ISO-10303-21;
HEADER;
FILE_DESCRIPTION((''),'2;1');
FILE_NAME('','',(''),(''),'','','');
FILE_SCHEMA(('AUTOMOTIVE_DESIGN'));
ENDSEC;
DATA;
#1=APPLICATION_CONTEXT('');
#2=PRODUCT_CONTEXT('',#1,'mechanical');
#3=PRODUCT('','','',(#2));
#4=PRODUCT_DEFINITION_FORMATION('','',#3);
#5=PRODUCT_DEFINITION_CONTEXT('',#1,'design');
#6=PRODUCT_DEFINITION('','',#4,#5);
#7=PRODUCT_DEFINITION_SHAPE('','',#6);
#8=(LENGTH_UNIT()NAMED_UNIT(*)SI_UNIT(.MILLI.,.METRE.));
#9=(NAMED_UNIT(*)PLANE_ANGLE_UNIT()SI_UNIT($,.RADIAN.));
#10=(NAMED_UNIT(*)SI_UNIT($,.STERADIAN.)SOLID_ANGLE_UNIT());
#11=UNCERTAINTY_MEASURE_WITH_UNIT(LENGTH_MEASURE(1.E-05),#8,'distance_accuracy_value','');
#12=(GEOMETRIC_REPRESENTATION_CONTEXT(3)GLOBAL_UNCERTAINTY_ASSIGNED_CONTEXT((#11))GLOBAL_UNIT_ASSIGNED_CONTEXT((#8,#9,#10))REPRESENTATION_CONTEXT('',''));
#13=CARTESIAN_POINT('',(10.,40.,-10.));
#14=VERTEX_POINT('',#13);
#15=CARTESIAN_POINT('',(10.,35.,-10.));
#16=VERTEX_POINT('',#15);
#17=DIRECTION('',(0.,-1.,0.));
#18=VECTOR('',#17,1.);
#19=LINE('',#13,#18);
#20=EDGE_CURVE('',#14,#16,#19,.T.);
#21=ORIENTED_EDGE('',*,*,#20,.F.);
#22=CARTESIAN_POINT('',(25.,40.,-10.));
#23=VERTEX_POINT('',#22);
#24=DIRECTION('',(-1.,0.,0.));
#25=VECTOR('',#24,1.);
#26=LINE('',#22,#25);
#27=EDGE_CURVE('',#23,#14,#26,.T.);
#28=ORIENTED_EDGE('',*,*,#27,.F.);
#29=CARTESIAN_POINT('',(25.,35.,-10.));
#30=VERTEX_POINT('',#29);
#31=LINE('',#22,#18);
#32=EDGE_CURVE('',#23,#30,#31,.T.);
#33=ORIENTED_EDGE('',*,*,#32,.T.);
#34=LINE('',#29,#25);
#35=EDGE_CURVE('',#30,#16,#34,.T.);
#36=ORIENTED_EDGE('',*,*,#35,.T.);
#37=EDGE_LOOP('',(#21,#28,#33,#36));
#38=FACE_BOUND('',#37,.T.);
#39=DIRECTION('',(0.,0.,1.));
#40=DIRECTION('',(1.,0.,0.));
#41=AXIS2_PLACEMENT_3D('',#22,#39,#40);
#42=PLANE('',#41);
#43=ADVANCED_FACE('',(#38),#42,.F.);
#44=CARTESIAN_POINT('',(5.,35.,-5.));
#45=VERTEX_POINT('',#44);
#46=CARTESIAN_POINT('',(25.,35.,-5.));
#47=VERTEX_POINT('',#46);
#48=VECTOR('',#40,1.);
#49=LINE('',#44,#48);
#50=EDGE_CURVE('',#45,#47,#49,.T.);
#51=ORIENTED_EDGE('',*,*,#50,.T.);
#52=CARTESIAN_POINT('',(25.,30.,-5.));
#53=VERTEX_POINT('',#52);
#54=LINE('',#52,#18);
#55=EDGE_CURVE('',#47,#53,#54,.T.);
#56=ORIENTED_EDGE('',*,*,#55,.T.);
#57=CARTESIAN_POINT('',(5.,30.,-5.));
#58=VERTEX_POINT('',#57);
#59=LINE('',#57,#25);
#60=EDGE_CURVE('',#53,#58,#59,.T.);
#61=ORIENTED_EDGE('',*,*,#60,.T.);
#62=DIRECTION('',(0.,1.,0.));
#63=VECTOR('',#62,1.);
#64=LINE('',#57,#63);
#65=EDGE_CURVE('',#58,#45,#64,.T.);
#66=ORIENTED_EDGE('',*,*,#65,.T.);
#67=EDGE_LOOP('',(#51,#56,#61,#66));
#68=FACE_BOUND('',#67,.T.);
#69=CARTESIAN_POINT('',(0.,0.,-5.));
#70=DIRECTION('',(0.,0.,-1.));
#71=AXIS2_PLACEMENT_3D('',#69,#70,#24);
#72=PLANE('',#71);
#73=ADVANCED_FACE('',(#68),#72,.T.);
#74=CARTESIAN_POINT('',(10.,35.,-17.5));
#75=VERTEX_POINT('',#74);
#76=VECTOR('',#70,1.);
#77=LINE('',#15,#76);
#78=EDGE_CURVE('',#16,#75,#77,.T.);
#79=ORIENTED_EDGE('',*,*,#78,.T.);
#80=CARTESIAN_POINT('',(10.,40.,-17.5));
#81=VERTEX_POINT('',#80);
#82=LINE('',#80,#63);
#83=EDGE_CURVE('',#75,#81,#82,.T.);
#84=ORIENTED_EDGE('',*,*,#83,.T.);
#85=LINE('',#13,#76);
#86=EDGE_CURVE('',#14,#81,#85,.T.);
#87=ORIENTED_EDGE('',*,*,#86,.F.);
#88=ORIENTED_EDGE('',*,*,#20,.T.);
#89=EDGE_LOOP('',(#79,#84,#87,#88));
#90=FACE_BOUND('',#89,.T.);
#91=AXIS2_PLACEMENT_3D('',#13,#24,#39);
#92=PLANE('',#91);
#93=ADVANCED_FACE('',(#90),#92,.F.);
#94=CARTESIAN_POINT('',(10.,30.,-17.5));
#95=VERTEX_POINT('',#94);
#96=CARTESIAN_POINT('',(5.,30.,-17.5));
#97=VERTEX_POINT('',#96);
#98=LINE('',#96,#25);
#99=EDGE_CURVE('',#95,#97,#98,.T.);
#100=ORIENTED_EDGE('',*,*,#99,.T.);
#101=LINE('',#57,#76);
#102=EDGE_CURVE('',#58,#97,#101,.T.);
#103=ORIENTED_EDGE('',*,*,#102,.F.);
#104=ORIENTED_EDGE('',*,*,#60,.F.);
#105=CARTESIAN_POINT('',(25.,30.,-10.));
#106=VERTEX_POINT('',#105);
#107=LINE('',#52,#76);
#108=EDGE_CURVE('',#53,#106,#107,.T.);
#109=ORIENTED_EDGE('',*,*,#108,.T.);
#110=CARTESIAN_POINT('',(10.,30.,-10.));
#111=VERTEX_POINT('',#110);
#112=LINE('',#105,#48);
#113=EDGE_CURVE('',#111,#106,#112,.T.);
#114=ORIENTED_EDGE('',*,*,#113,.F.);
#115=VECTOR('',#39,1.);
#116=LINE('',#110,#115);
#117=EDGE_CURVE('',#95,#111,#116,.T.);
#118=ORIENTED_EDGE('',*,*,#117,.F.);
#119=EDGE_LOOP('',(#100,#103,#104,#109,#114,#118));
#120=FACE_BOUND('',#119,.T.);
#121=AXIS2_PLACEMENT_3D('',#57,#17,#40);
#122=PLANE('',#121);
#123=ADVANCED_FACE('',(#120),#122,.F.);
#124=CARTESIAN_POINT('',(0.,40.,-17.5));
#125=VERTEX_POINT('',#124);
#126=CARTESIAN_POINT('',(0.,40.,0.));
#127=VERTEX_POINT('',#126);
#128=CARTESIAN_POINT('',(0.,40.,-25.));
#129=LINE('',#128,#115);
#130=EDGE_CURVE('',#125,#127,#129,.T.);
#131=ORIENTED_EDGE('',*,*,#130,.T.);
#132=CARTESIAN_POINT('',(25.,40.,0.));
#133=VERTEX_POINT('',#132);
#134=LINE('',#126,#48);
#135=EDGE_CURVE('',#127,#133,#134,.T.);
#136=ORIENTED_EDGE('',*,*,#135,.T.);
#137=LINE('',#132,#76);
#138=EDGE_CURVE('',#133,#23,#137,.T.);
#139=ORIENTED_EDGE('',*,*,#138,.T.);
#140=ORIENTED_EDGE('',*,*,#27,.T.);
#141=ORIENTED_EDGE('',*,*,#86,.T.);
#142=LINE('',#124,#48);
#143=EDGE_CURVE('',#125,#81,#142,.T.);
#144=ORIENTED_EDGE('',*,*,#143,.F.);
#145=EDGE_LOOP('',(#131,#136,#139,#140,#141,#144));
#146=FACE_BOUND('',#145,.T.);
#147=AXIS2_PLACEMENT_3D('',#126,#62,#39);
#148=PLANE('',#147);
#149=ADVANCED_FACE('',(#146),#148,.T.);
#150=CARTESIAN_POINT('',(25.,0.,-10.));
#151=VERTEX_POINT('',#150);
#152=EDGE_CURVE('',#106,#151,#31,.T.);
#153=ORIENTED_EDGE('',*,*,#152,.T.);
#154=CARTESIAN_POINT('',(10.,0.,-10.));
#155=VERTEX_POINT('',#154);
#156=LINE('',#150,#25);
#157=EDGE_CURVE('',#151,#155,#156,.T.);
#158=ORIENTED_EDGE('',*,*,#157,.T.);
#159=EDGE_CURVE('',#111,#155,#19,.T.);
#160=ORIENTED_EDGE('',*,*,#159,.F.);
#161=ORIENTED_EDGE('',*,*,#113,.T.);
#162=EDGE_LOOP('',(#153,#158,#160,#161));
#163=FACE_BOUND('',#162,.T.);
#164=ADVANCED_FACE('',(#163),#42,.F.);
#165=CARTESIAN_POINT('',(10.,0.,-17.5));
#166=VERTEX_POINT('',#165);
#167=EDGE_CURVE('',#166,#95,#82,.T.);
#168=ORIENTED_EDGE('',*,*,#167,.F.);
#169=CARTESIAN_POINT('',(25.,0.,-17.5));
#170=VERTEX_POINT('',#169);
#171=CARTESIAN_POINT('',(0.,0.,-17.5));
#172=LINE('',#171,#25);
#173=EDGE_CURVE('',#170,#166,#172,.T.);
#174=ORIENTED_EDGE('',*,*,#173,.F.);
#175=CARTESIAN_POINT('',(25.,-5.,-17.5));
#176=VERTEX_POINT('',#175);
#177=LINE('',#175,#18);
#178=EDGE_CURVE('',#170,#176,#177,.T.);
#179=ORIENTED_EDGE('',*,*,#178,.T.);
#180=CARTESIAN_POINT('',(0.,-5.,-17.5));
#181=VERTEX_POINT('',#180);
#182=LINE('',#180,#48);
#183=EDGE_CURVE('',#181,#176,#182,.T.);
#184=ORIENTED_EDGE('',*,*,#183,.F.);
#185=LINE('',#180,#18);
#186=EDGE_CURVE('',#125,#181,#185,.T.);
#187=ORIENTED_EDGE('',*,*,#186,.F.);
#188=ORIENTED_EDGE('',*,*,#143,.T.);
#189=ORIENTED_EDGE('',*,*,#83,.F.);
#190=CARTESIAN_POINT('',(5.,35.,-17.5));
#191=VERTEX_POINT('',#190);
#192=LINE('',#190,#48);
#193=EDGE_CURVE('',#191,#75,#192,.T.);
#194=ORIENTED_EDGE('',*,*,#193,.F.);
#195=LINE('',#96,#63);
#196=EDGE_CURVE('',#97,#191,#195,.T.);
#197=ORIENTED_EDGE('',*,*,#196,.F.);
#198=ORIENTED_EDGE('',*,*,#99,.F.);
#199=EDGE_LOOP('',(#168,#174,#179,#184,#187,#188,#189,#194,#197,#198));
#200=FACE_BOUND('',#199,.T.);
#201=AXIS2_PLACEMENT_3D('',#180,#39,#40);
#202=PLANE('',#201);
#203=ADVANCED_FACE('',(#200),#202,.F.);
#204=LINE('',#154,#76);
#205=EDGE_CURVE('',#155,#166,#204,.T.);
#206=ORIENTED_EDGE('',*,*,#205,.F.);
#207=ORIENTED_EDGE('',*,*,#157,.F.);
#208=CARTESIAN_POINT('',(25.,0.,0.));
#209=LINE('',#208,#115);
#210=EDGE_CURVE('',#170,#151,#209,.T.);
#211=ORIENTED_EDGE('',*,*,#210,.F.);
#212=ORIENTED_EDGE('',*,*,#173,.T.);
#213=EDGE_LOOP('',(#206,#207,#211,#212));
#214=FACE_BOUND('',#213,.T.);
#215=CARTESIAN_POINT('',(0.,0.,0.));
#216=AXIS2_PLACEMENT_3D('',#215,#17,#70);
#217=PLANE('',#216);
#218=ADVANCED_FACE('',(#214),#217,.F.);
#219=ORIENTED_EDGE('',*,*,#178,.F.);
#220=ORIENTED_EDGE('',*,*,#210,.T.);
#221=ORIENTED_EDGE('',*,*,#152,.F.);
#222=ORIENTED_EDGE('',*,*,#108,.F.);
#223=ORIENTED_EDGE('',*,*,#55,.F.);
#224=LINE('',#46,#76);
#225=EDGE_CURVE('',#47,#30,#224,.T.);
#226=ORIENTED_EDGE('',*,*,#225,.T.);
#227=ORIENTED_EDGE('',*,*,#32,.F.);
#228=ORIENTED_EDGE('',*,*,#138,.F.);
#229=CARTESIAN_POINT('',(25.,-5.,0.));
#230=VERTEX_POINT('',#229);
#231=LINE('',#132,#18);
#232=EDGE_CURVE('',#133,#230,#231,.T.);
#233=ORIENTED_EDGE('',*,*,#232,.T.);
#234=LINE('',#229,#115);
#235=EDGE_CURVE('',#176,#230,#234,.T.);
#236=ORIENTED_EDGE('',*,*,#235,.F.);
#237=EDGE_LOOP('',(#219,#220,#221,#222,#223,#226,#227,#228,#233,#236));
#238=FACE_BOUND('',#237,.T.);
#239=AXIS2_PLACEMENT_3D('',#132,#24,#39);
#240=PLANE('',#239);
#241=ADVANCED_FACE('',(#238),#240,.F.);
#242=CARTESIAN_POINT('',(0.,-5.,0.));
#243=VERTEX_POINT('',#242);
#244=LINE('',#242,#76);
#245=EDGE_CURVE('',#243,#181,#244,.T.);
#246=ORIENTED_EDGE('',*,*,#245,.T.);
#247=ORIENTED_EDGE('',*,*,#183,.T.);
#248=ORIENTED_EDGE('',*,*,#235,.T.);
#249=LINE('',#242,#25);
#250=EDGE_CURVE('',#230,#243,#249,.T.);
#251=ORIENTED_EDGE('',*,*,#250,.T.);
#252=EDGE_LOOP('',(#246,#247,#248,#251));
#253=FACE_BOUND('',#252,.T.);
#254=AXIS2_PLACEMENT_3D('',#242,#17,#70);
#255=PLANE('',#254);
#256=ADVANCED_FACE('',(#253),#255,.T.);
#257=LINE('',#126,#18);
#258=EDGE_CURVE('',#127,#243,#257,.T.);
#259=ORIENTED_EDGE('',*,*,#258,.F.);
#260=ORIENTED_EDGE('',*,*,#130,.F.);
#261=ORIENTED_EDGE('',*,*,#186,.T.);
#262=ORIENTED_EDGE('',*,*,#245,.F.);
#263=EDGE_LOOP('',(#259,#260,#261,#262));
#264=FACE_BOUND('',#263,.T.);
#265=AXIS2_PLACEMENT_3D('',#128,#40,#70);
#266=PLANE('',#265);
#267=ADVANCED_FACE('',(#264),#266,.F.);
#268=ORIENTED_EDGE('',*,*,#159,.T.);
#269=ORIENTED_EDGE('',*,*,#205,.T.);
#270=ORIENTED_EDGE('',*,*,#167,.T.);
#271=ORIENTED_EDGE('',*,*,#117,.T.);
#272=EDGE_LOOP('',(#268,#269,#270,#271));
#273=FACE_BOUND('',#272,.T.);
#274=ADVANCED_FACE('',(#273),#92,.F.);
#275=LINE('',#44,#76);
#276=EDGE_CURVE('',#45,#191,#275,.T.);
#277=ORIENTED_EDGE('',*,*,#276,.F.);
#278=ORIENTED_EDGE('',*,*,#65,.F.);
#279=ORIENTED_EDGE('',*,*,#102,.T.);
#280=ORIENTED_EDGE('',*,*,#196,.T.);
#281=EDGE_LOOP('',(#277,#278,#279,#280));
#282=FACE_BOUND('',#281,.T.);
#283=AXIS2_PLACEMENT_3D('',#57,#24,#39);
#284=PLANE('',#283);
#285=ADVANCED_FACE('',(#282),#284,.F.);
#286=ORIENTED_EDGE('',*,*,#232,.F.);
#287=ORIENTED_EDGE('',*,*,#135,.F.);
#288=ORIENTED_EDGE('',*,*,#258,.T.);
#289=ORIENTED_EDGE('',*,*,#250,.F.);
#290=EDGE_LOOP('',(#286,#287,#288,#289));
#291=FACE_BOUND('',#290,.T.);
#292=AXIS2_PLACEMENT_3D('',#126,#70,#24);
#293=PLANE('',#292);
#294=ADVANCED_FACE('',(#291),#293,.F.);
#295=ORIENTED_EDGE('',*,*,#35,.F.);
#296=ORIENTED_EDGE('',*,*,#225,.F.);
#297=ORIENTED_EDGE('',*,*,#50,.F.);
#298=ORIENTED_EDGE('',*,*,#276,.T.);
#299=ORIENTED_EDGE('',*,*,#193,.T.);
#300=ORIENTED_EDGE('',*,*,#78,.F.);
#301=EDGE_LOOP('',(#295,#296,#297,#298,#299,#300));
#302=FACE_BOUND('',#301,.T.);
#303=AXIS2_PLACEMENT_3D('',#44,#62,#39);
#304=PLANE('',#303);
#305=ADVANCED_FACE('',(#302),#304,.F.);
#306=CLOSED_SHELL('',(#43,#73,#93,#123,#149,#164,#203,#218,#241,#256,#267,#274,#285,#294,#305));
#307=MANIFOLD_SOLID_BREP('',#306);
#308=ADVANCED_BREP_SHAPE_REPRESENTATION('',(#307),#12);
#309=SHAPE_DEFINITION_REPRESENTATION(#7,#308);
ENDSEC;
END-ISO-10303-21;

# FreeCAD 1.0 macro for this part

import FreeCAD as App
import Part
import Sketcher
Q = App.Units.Quantity

doc = App.newDocument("Part")
params = doc.addObject("Spreadsheet::Sheet", "Params")
for row, (alias, value) in enumerate([
    ("sketch1_width", "25 mm"),
    ("sketch1_width2", "15 mm"),
    ("pad1_length", "40 mm"),
    ("sketch2_width", "25 mm"),
    ("pad2_length", "5 mm"),
    ("sketch3_width", "20 mm"),
    ("sketch3_height", "5 mm"),
    ("pocket1_length", "20 mm"),
    ("sketch4_width", "45 mm"),
    ("sketch4_height", "7.5 mm"),
], start=1):
    params.set(f"A{row}", alias)
    params.set(f"B{row}", "=" + value)
    params.setAlias(f"B{row}", alias)

body = doc.addObject("PartDesign::Body", "Body")

sketch1 = body.newObject("Sketcher::SketchObject", "Sketch")
sketch1.AttachmentSupport = (doc.getObject("XZ_Plane"), [""])
sketch1.MapMode = "FlatFace"
sketch1.addGeometry([
    Part.LineSegment(App.Vector(0, 0, 0), App.Vector(25, 0, 0)),
    Part.LineSegment(App.Vector(25, 0, 0), App.Vector(25, -10, 0)),
    Part.LineSegment(App.Vector(25, -10, 0), App.Vector(10, -10, 0)),
    Part.LineSegment(App.Vector(10, -10, 0), App.Vector(10, -25, 0)),
    Part.LineSegment(App.Vector(10, -25, 0), App.Vector(0, -25, 0)),
    Part.LineSegment(App.Vector(0, -25, 0), App.Vector(0, 0, 0)),
], False)
sketch1.addConstraint([
    Sketcher.Constraint("Coincident", 0, 2, 1, 1),
    Sketcher.Constraint("Coincident", 1, 2, 2, 1),
    Sketcher.Constraint("Coincident", 2, 2, 3, 1),
    Sketcher.Constraint("Coincident", 3, 2, 4, 1),
    Sketcher.Constraint("Coincident", 4, 2, 5, 1),
    Sketcher.Constraint("Coincident", 5, 2, 0, 1),
    Sketcher.Constraint("Horizontal", 0),
    Sketcher.Constraint("Vertical", 1),
    Sketcher.Constraint("Horizontal", 2),
    Sketcher.Constraint("Vertical", 3),
    Sketcher.Constraint("Horizontal", 4),
    Sketcher.Constraint("Vertical", 5),
    Sketcher.Constraint("Coincident", 5, 2, -1, 1),
    Sketcher.Constraint("Equal", 4, 1),
    Sketcher.Constraint("Equal", 2, 3),
    Sketcher.Constraint("DistanceX", 0, 1, 0, 2, Q("25 mm")),
    Sketcher.Constraint("DistanceX", 2, 2, 2, 1, Q("15 mm")),
])
sketch1.setExpression("Constraints[15]", "Params.sketch1_width")
sketch1.setExpression("Constraints[16]", "Params.sketch1_width2")
pad1 = body.newObject("PartDesign::Pad", "Pad")
pad1.Profile = sketch1
pad1.setExpression("Length", "Params.pad1_length")
pad1.Reversed = True

sketch2 = body.newObject("Sketcher::SketchObject", "Sketch001")
sketch2.AttachmentSupport = (doc.getObject("XZ_Plane"), [""])
sketch2.MapMode = "FlatFace"
sketch2.addGeometry([
    Part.LineSegment(App.Vector(0, 0, 0), App.Vector(0, -25, 0)),
    Part.LineSegment(App.Vector(0, -25, 0), App.Vector(25, -25, 0)),
    Part.LineSegment(App.Vector(25, -25, 0), App.Vector(25, 0, 0)),
    Part.LineSegment(App.Vector(25, 0, 0), App.Vector(0, 0, 0)),
], False)
sketch2.addConstraint([
    Sketcher.Constraint("Coincident", 0, 2, 1, 1),
    Sketcher.Constraint("Coincident", 1, 2, 2, 1),
    Sketcher.Constraint("Coincident", 2, 2, 3, 1),
    Sketcher.Constraint("Coincident", 3, 2, 0, 1),
    Sketcher.Constraint("Vertical", 0),
    Sketcher.Constraint("Horizontal", 1),
    Sketcher.Constraint("Vertical", 2),
    Sketcher.Constraint("Horizontal", 3),
    Sketcher.Constraint("Coincident", 3, 2, -1, 1),
    Sketcher.Constraint("Equal", 3, 0),
    Sketcher.Constraint("DistanceX", 1, 1, 1, 2, Q("25 mm")),
])
sketch2.setExpression("Constraints[10]", "Params.sketch2_width")
pad2 = body.newObject("PartDesign::Pad", "Pad001")
pad2.Profile = sketch2
pad2.setExpression("Length", "Params.pad2_length")

sketch3 = body.newObject("Sketcher::SketchObject", "Sketch002")
sketch3.AttachmentSupport = (doc.getObject("XY_Plane"), [""])
sketch3.MapMode = "FlatFace"
sketch3.AttachmentOffset = App.Placement(App.Vector(0, 0, -25), App.Rotation())
sketch3.addGeometry([
    Part.LineSegment(App.Vector(25, 35, 0), App.Vector(25, 30, 0)),
    Part.LineSegment(App.Vector(25, 30, 0), App.Vector(5, 30, 0)),
    Part.LineSegment(App.Vector(5, 30, 0), App.Vector(5, 35, 0)),
    Part.LineSegment(App.Vector(5, 35, 0), App.Vector(25, 35, 0)),
], False)
sketch3.addConstraint([
    Sketcher.Constraint("Coincident", 0, 2, 1, 1),
    Sketcher.Constraint("Coincident", 1, 2, 2, 1),
    Sketcher.Constraint("Coincident", 2, 2, 3, 1),
    Sketcher.Constraint("Coincident", 3, 2, 0, 1),
    Sketcher.Constraint("Vertical", 0),
    Sketcher.Constraint("Horizontal", 1),
    Sketcher.Constraint("Vertical", 2),
    Sketcher.Constraint("Horizontal", 3),
    Sketcher.Constraint("DistanceX", 1, 2, 1, 1, Q("20 mm")),
    Sketcher.Constraint("DistanceY", 0, 2, 0, 1, Q("5 mm")),
    Sketcher.Constraint("DistanceX", -1, 1, 0, 2, Q("25 mm")),
    Sketcher.Constraint("DistanceY", -1, 1, 0, 2, Q("30 mm")),
])
sketch3.setExpression("Constraints[8]", "Params.sketch3_width")
sketch3.setExpression("Constraints[9]", "Params.sketch3_height")
pocket1 = body.newObject("PartDesign::Pocket", "Pocket")
pocket1.Profile = sketch3
pocket1.setExpression("Length", "Params.pocket1_length")
pocket1.Reversed = True

sketch4 = body.newObject("Sketcher::SketchObject", "Sketch003")
sketch4.AttachmentSupport = (doc.getObject("YZ_Plane"), [""])
sketch4.MapMode = "FlatFace"
sketch4.AttachmentOffset = App.Placement(App.Vector(0, 0, 10), App.Rotation())
sketch4.addGeometry([
    Part.LineSegment(App.Vector(40, -17.5, 0), App.Vector(-5, -17.5, 0)),
    Part.LineSegment(App.Vector(-5, -17.5, 0), App.Vector(-5, -25, 0)),
    Part.LineSegment(App.Vector(-5, -25, 0), App.Vector(40, -25, 0)),
    Part.LineSegment(App.Vector(40, -25, 0), App.Vector(40, -17.5, 0)),
], False)
sketch4.addConstraint([
    Sketcher.Constraint("Coincident", 0, 2, 1, 1),
    Sketcher.Constraint("Coincident", 1, 2, 2, 1),
    Sketcher.Constraint("Coincident", 2, 2, 3, 1),
    Sketcher.Constraint("Coincident", 3, 2, 0, 1),
    Sketcher.Constraint("Horizontal", 0),
    Sketcher.Constraint("Vertical", 1),
    Sketcher.Constraint("Horizontal", 2),
    Sketcher.Constraint("Vertical", 3),
    Sketcher.Constraint("DistanceX", 0, 2, 0, 1, Q("45 mm")),
    Sketcher.Constraint("DistanceY", 1, 2, 1, 1, Q("7.5 mm")),
    Sketcher.Constraint("DistanceX", 0, 2, -1, 1, Q("5 mm")),
    Sketcher.Constraint("DistanceY", 1, 2, -1, 1, Q("25 mm")),
])
sketch4.setExpression("Constraints[8]", "Params.sketch4_width")
sketch4.setExpression("Constraints[9]", "Params.sketch4_height")
pocket2 = body.newObject("PartDesign::Pocket", "Pocket001")
pocket2.Profile = sketch4
pocket2.Type = "ThroughAll"
pocket2.Midplane = True

doc.recompute()
